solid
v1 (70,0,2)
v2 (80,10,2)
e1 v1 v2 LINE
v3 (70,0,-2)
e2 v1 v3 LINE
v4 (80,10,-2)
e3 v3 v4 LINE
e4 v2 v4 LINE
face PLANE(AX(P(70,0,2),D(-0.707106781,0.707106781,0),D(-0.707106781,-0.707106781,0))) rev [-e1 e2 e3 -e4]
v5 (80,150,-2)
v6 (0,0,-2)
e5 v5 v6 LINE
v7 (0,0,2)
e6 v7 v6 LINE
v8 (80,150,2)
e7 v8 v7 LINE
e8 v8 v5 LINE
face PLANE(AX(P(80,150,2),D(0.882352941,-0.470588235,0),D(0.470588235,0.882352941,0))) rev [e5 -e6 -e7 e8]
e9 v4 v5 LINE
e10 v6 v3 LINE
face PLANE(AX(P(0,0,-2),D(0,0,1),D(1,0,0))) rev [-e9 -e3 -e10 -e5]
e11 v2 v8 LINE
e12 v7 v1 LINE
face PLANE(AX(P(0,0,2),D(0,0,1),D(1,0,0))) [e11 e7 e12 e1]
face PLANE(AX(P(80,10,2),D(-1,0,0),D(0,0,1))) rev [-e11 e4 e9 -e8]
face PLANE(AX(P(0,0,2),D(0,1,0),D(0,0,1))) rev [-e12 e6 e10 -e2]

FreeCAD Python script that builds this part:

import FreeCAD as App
import Part
import Sketcher

V = App.Vector
Q = App.Units.Quantity


def add_polygon(sketch, points):
    """Adds a closed chain of lines whose ends are joined by coincident constraints."""
    first, n = sketch.GeometryCount, len(points)
    for a, b in zip(points, points[1:] + points[:1]):
        sketch.addGeometry(Part.LineSegment(App.Vector(*a, 0), App.Vector(*b, 0)), False)
    for i in range(n):
        sketch.addConstraint(Sketcher.Constraint("Coincident", first + i, 2, first + (i + 1) % n, 1))

doc = App.newDocument("Part")
body = doc.addObject("PartDesign::Body", "Body")

# Sketch on XY plane
sketch1 = body.newObject("Sketcher::SketchObject", "Sketch")
sketch1.AttachmentSupport = (doc.getObject("XY_Plane"), [""])
sketch1.MapMode = "FlatFace"
add_polygon(sketch1, [(0, 0), (70, 0), (80, 10), (80, 150)])  # lines 0-3
sketch1.addConstraint([
    Sketcher.Constraint("Horizontal", 0),
    Sketcher.Constraint("Vertical", 2),
    Sketcher.Constraint("Coincident", 3, 2, -1, 1),
    Sketcher.Constraint("DistanceX", 0, 1, 0, 2, Q("70 mm")),
    Sketcher.Constraint("DistanceY", 2, 1, 2, 2, Q("140 mm")),
    Sketcher.Constraint("Angle", 1, Q("45 deg")),
    Sketcher.Constraint("Distance", 3, Q("170 mm")),
])
pad1 = body.newObject("PartDesign::Pad", "Pad")
pad1.Profile = sketch1
pad1.Length = 4
pad1.Midplane = True

doc.recompute()
